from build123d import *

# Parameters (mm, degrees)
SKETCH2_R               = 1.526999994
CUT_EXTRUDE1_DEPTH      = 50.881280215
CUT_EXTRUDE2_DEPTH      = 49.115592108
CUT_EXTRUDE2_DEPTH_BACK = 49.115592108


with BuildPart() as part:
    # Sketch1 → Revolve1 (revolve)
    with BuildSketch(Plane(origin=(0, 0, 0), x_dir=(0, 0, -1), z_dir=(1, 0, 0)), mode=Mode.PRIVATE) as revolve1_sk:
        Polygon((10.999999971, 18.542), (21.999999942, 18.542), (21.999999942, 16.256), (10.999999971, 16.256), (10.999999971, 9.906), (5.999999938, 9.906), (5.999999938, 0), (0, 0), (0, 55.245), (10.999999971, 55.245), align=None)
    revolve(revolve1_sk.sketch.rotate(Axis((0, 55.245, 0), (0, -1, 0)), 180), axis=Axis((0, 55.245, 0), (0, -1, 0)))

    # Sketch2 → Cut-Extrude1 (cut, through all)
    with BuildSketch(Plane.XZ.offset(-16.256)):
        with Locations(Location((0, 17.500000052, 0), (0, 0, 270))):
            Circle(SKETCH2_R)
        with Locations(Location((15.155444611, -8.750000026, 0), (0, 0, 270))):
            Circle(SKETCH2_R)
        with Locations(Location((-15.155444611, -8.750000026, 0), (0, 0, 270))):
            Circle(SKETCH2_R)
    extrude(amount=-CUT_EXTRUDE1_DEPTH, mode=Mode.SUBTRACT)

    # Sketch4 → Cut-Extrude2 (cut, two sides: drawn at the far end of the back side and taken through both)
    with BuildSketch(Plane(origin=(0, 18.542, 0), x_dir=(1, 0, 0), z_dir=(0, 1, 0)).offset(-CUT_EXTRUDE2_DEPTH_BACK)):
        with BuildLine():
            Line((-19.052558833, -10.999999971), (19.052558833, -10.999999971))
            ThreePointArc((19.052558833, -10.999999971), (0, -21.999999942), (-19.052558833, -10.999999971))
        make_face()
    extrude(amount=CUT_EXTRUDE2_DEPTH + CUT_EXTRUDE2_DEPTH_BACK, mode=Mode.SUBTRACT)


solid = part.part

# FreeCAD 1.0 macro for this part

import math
import FreeCAD as App
import Part
import Sketcher
Q = App.Units.Quantity

doc = App.newDocument("Part")
body = doc.addObject("PartDesign::Body", "Body")

sketch1 = body.newObject("Sketcher::SketchObject", "Sketch")
sketch1.AttachmentSupport = (doc.getObject("YZ_Plane"), [""])
sketch1.MapMode = "FlatFace"
sketch1.addGeometry(Part.LineSegment(App.Vector(18.542, -22, 0), App.Vector(18.542, -11, 0)), False)
sketch1.addGeometry(Part.LineSegment(App.Vector(18.542, -11, 0), App.Vector(55.245, -11, 0)), False)
sketch1.addGeometry(Part.LineSegment(App.Vector(55.245, -11, 0), App.Vector(55.245, 0, 0)), False)
sketch1.addGeometry(Part.LineSegment(App.Vector(55.245, 0, 0), App.Vector(0, 0, 0)), False)
sketch1.addGeometry(Part.LineSegment(App.Vector(0, 0, 0), App.Vector(0, -6, 0)), False)
sketch1.addGeometry(Part.LineSegment(App.Vector(0, -6, 0), App.Vector(9.906, -6, 0)), False)
sketch1.addGeometry(Part.LineSegment(App.Vector(9.906, -6, 0), App.Vector(9.906, -11, 0)), False)
sketch1.addGeometry(Part.LineSegment(App.Vector(9.906, -11, 0), App.Vector(16.256, -11, 0)), False)
sketch1.addGeometry(Part.LineSegment(App.Vector(16.256, -11, 0), App.Vector(16.256, -22, 0)), False)
sketch1.addGeometry(Part.LineSegment(App.Vector(16.256, -22, 0), App.Vector(18.542, -22, 0)), False)
sketch1.addConstraint(Sketcher.Constraint("Coincident", 0, 2, 1, 1))
sketch1.addConstraint(Sketcher.Constraint("Coincident", 1, 2, 2, 1))
sketch1.addConstraint(Sketcher.Constraint("Coincident", 2, 2, 3, 1))
sketch1.addConstraint(Sketcher.Constraint("Coincident", 3, 2, 4, 1))
sketch1.addConstraint(Sketcher.Constraint("Coincident", 4, 2, 5, 1))
sketch1.addConstraint(Sketcher.Constraint("Coincident", 5, 2, 6, 1))
sketch1.addConstraint(Sketcher.Constraint("Coincident", 6, 2, 7, 1))
sketch1.addConstraint(Sketcher.Constraint("Coincident", 7, 2, 8, 1))
sketch1.addConstraint(Sketcher.Constraint("Coincident", 8, 2, 9, 1))
sketch1.addConstraint(Sketcher.Constraint("Coincident", 9, 2, 0, 1))
sketch1.addConstraint(Sketcher.Constraint("Vertical", 0))
sketch1.addConstraint(Sketcher.Constraint("Horizontal", 1))
sketch1.addConstraint(Sketcher.Constraint("Vertical", 2))
sketch1.addConstraint(Sketcher.Constraint("Horizontal", 3))
sketch1.addConstraint(Sketcher.Constraint("Vertical", 4))
sketch1.addConstraint(Sketcher.Constraint("Horizontal", 5))
sketch1.addConstraint(Sketcher.Constraint("Vertical", 6))
sketch1.addConstraint(Sketcher.Constraint("Horizontal", 7))
sketch1.addConstraint(Sketcher.Constraint("Vertical", 8))
sketch1.addConstraint(Sketcher.Constraint("Horizontal", 9))
sketch1.addConstraint(Sketcher.Constraint("Coincident", 3, 2, -1, 1))
sketch1.addConstraint(Sketcher.Constraint("Horizontal", 1, 2, 6, 2))
sketch1.addConstraint(Sketcher.Constraint("Equal", 0, 2))
sketch1.addConstraint(Sketcher.Constraint("DistanceX", 5, 1, 5, 2, Q("0.39 in")))
sketch1.addConstraint(Sketcher.Constraint("DistanceX", 7, 1, 7, 2, Q("0.25 in")))
sketch1.addConstraint(Sketcher.Constraint("DistanceX", 9, 1, 9, 2, Q("0.09 in")))
sketch1.addConstraint(Sketcher.Constraint("DistanceX", 1, 1, 1, 2, Q("1.445 in")))
sketch1.addConstraint(Sketcher.Constraint("DistanceY", 0, 1, 0, 2, 11.0))
sketch1.addConstraint(Sketcher.Constraint("DistanceY", 4, 2, 4, 1, 6.0))
revolution = body.newObject("PartDesign::Revolution", "Revolution")
revolution.Profile = sketch1
revolution.ReferenceAxis = (sketch1, ["H_Axis"])
revolution.Angle = 360

sketch2 = body.newObject("Sketcher::SketchObject", "Sketch001")
sketch2.AttachmentSupport = (doc.getObject("XZ_Plane"), [""])
sketch2.MapMode = "FlatFace"
sketch2.AttachmentOffset = App.Placement(App.Vector(0, 0, -0.64 * 25.4), App.Rotation())
sketch2.addGeometry(Part.Circle(App.Vector(0, 17.5, 0), App.Vector(0, 0, 1), 1.527), False)
sketch2.addGeometry(Part.Circle(App.Vector(15.155445, -8.75, 0), App.Vector(0, 0, 1), 1.527), False)
sketch2.addGeometry(Part.Circle(App.Vector(-15.155445, -8.75, 0), App.Vector(0, 0, 1), 1.527), False)
sketch2.addConstraint(Sketcher.Constraint("Equal", 0, 1))
sketch2.addConstraint(Sketcher.Constraint("Equal", 1, 2))
sketch2.addConstraint(Sketcher.Constraint("Symmetric", 1, 3, 2, 3, -2))
sketch2.addConstraint(Sketcher.Constraint("PointOnObject", 0, 3, -2))
sketch2.addConstraint(Sketcher.Constraint("Diameter", 0, 3.054))
sketch2.addConstraint(Sketcher.Constraint("DistanceY", -1, 1, 0, 3, 17.5))
sketch2.addConstraint(Sketcher.Constraint("DistanceY", 1, 3, -1, 1, 8.75))
sketch2.addConstraint(Sketcher.Constraint("DistanceX", 2, 3, 1, 3, 30.310889))
pocket1 = body.newObject("PartDesign::Pocket", "Pocket")
pocket1.Profile = sketch2
pocket1.Type = "ThroughAll"

sketch3 = body.newObject("Sketcher::SketchObject", "Sketch002")
sketch3.AttachmentSupport = (doc.getObject("XZ_Plane"), [""])
sketch3.MapMode = "FlatFace"
sketch3.AttachmentOffset = App.Placement(App.Vector(0, 0, -0.73 * 25.4), App.Rotation())
sketch3.addGeometry(Part.LineSegment(App.Vector(19.052559, 11, 0), App.Vector(-19.052559, 11, 0)), False)
sketch3.addGeometry(Part.ArcOfCircle(Part.Circle(App.Vector(0, 0, 0), App.Vector(0, 0, 1), 22), math.radians(30), math.radians(150)), False)
sketch3.addConstraint(Sketcher.Constraint("Coincident", 0, 1, 1, 1))
sketch3.addConstraint(Sketcher.Constraint("Coincident", 1, 2, 0, 2))
sketch3.addConstraint(Sketcher.Constraint("Horizontal", 0))
sketch3.addConstraint(Sketcher.Constraint("Coincident", 1, 3, -1, 1))
sketch3.addConstraint(Sketcher.Constraint("Radius", 1, 22.0))
sketch3.addConstraint(Sketcher.Constraint("DistanceY", -1, 1, 0, 1, 11.0))
pocket2 = body.newObject("PartDesign::Pocket", "Pocket001")
pocket2.Profile = sketch3
pocket2.Type = "ThroughAll"
pocket2.Midplane = True

doc.recompute()
